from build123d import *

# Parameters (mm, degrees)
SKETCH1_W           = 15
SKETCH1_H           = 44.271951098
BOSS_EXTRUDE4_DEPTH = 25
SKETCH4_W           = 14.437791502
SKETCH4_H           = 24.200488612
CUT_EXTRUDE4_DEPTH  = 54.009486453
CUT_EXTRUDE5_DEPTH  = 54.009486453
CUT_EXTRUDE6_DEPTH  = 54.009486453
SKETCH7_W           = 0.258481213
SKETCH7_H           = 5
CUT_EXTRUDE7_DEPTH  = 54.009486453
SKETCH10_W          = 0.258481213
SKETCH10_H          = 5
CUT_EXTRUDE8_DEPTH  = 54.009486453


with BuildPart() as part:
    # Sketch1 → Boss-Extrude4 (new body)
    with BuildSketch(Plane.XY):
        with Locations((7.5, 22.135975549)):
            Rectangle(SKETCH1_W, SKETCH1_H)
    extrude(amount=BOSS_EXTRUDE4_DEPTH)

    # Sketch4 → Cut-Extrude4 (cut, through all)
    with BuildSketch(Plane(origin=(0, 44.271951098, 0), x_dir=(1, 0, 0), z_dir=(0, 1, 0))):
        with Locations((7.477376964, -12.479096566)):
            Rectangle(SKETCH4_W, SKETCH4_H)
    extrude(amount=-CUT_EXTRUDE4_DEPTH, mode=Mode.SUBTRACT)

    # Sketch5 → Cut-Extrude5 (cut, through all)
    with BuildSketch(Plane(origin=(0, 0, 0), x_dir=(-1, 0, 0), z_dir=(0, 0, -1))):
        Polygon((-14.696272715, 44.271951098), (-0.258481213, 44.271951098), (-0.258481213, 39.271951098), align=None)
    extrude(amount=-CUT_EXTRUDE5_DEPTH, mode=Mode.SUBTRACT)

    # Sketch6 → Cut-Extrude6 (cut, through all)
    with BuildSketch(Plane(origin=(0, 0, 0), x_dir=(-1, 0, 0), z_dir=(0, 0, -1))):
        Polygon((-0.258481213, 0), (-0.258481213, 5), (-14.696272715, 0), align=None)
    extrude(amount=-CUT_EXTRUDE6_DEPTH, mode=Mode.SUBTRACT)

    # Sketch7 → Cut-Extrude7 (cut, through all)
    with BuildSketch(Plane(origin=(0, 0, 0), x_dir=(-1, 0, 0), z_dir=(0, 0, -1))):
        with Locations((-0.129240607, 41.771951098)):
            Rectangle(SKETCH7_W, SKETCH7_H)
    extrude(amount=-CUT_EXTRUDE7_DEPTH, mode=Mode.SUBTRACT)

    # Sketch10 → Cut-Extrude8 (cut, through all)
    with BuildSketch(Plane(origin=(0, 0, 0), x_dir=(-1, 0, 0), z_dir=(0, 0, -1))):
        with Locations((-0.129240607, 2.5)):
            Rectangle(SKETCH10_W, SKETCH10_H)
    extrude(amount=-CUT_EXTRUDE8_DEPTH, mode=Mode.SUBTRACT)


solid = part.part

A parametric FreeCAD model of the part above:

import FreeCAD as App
import Part
import Sketcher
from FreeCAD import Vector


def add_polygon(sketch, points):
    """Adds a closed chain of lines whose ends are joined by coincident constraints."""
    first, n = sketch.GeometryCount, len(points)
    for a, b in zip(points, points[1:] + points[:1]):
        sketch.addGeometry(Part.LineSegment(App.Vector(*a, 0), App.Vector(*b, 0)), False)
    for i in range(n):
        sketch.addConstraint(Sketcher.Constraint("Coincident", first + i, 2, first + (i + 1) % n, 1))

doc = App.newDocument("Part")
body = doc.addObject("PartDesign::Body", "Body")

# Sketch on XY plane
sketch1 = body.newObject("Sketcher::SketchObject", "Sketch")
sketch1.AttachmentSupport = (doc.getObject("XY_Plane"), [""])
sketch1.MapMode = "FlatFace"
add_polygon(sketch1, [(0, 44), (0, 0), (15, 0), (15, 44)])  # lines 0-3
sketch1.addConstraint(Sketcher.Constraint("Vertical", 0))
sketch1.addConstraint(Sketcher.Constraint("Horizontal", 1))
sketch1.addConstraint(Sketcher.Constraint("Vertical", 2))
sketch1.addConstraint(Sketcher.Constraint("Horizontal", 3))
sketch1.addConstraint(Sketcher.Constraint("Coincident", 0, 2, -1, 1))
sketch1.addConstraint(Sketcher.Constraint("DistanceX", 1, 1, 1, 2, 15.0))
sketch1.addConstraint(Sketcher.Constraint("DistanceY", 0, 2, 0, 1, 44.271951))
pad1 = body.newObject("PartDesign::Pad", "Pad")
pad1.Profile = sketch1
pad1.Length = 25

# Sketch on XZ plane
sketch2 = body.newObject("Sketcher::SketchObject", "Sketch001")
sketch2.AttachmentSupport = (doc.getObject("XZ_Plane"), [""])
sketch2.MapMode = "FlatFace"
sketch2.AttachmentOffset = App.Placement(Vector(0, 0, -44.271951), App.Rotation())
add_polygon(sketch2, [(0, 0), (0, 25), (15, 25), (15, 0)])  # lines 0-3
sketch2.addConstraint(Sketcher.Constraint("Vertical", 0))
sketch2.addConstraint(Sketcher.Constraint("Horizontal", 1))
sketch2.addConstraint(Sketcher.Constraint("Vertical", 2))
sketch2.addConstraint(Sketcher.Constraint("Horizontal", 3))
sketch2.addConstraint(Sketcher.Constraint("DistanceX", 1, 1, 1, 2, 14.437792))
sketch2.addConstraint(Sketcher.Constraint("DistanceY", 0, 1, 0, 2, 24.200489))
sketch2.addConstraint(Sketcher.Constraint("DistanceX", -1, 1, 0, 2, 0.258481))
sketch2.addConstraint(Sketcher.Constraint("DistanceY", -1, 1, 0, 2, 24.579341))
pocket1 = body.newObject("PartDesign::Pocket", "Pocket")
pocket1.Profile = sketch2
pocket1.Type = "ThroughAll"
pocket1.Reversed = True

# Sketch on XY plane
sketch3 = body.newObject("Sketcher::SketchObject", "Sketch002")
sketch3.AttachmentSupport = (doc.getObject("XY_Plane"), [""])
sketch3.MapMode = "FlatFace"
add_polygon(sketch3, [(0, 44), (15, 44), (0, 39)])  # lines 0-2
sketch3.addConstraint(Sketcher.Constraint("Horizontal", 0))
sketch3.addConstraint(Sketcher.Constraint("Vertical", 2))
sketch3.addConstraint(Sketcher.Constraint("DistanceY", 2, 1, 2, 2, 5.0))
sketch3.addConstraint(Sketcher.Constraint("DistanceX", 0, 1, 0, 2, 14.437792))
sketch3.addConstraint(Sketcher.Constraint("DistanceY", -1, 1, 0, 2, 44.271951))
sketch3.addConstraint(Sketcher.Constraint("DistanceX", -1, 1, 1, 2, 0.258481))
pocket2 = body.newObject("PartDesign::Pocket", "Pocket001")
pocket2.Profile = sketch3
pocket2.Type = "ThroughAll"
pocket2.Reversed = True

# Sketch on XY plane
sketch4 = body.newObject("Sketcher::SketchObject", "Sketch003")
sketch4.AttachmentSupport = (doc.getObject("XY_Plane"), [""])
sketch4.MapMode = "FlatFace"
add_polygon(sketch4, [(0, 0), (0, 5), (15, 0)])  # lines 0-2
sketch4.addConstraint(Sketcher.Constraint("Vertical", 0))
sketch4.addConstraint(Sketcher.Constraint("Horizontal", 2))
sketch4.addConstraint(Sketcher.Constraint("PointOnObject", 1, 2, -1))
sketch4.addConstraint(Sketcher.Constraint("DistanceY", 0, 1, 0, 2, 5.0))
sketch4.addConstraint(Sketcher.Constraint("DistanceX", 2, 2, 2, 1, 14.437792))
sketch4.addConstraint(Sketcher.Constraint("DistanceX", -1, 1, 0, 2, 0.258481))
pocket3 = body.newObject("PartDesign::Pocket", "Pocket002")
pocket3.Profile = sketch4
pocket3.Type = "ThroughAll"
pocket3.Reversed = True

# Sketch on XY plane
sketch5 = body.newObject("Sketcher::SketchObject", "Sketch004")
sketch5.AttachmentSupport = (doc.getObject("XY_Plane"), [""])
sketch5.MapMode = "FlatFace"
add_polygon(sketch5, [(0.26, 44.27), (0.26, 39.27), (0, 39.27), (0, 44.27)])  # lines 0-3
sketch5.addConstraint(Sketcher.Constraint("Vertical", 0))
sketch5.addConstraint(Sketcher.Constraint("Horizontal", 1))
sketch5.addConstraint(Sketcher.Constraint("Vertical", 2))
sketch5.addConstraint(Sketcher.Constraint("Horizontal", 3))
sketch5.addConstraint(Sketcher.Constraint("PointOnObject", 1, 2, -2))
sketch5.addConstraint(Sketcher.Constraint("DistanceY", 0, 2, 0, 1, 5.0))
sketch5.addConstraint(Sketcher.Constraint("DistanceX", 1, 2, 1, 1, 0.258481))
sketch5.addConstraint(Sketcher.Constraint("DistanceY", -1, 1, 0, 2, 39.271951))
pocket4 = body.newObject("PartDesign::Pocket", "Pocket003")
pocket4.Profile = sketch5
pocket4.Type = "ThroughAll"
pocket4.Reversed = True

# Sketch on XY plane
sketch6 = body.newObject("Sketcher::SketchObject", "Sketch005")
sketch6.AttachmentSupport = (doc.getObject("XY_Plane"), [""])
sketch6.MapMode = "FlatFace"
add_polygon(sketch6, [(0.26, 5), (0.26, 0), (0, 0), (0, 5)])  # lines 0-3
sketch6.addConstraint(Sketcher.Constraint("Vertical", 0))
sketch6.addConstraint(Sketcher.Constraint("Horizontal", 1))
sketch6.addConstraint(Sketcher.Constraint("Vertical", 2))
sketch6.addConstraint(Sketcher.Constraint("Horizontal", 3))
sketch6.addConstraint(Sketcher.Constraint("Coincident", 1, 2, -1, 1))
sketch6.addConstraint(Sketcher.Constraint("DistanceY", 0, 2, 0, 1, 5.0))
sketch6.addConstraint(Sketcher.Constraint("DistanceX", 1, 2, 1, 1, 0.258481))
pocket5 = body.newObject("PartDesign::Pocket", "Pocket004")
pocket5.Profile = sketch6
pocket5.Type = "ThroughAll"
pocket5.Reversed = True

doc.recompute()
